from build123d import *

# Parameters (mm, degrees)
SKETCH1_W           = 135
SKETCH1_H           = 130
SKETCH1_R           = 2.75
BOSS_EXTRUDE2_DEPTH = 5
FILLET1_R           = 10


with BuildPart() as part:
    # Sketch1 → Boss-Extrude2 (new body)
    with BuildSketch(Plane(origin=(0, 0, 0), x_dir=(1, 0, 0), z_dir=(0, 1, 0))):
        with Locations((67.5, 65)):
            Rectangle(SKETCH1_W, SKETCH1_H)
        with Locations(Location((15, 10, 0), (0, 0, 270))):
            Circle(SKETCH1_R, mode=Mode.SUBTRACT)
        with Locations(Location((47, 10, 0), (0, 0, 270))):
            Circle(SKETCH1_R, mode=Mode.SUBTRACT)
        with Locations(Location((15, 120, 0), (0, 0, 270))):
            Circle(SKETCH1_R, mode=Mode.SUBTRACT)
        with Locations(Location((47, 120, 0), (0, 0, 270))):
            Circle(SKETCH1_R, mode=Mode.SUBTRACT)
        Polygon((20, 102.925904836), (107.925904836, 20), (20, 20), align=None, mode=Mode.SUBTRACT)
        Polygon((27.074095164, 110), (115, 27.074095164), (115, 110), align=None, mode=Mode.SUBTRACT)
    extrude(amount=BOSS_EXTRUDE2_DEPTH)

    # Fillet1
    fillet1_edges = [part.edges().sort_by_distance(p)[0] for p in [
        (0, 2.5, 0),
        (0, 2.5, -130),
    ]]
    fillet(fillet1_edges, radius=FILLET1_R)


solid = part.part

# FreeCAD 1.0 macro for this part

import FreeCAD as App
import Part
import Sketcher


def edges_at(feature, points):
    """Names of the edges that pass closest to the given points."""
    edges = feature.Shape.Edges
    near = lambda p: min(range(len(edges)), key=lambda i: edges[i].distToShape(Part.Vertex(*p))[0])
    return sorted({f"Edge{near(p) + 1}" for p in points})


def add_polygon(sketch, points):
    """Adds a closed chain of lines whose ends are joined by coincident constraints."""
    first, n = sketch.GeometryCount, len(points)
    for a, b in zip(points, points[1:] + points[:1]):
        sketch.addGeometry(Part.LineSegment(App.Vector(*a, 0), App.Vector(*b, 0)), False)
    for i in range(n):
        sketch.addConstraint(Sketcher.Constraint("Coincident", first + i, 2, first + (i + 1) % n, 1))

doc = App.newDocument("Part")
body = doc.addObject("PartDesign::Body", "Body")

sketch1 = body.newObject("Sketcher::SketchObject", "Sketch")
sketch1.AttachmentSupport = (doc.getObject("XZ_Plane"), [""])
sketch1.MapMode = "FlatFace"
add_polygon(sketch1, [(0, -130), (0, 0), (135, 0), (135, -130)])
sketch1.addGeometry(Part.Circle(App.Vector(15, -10, 0), App.Vector(0, 0, 1), 2.8), False)
sketch1.addGeometry(Part.Circle(App.Vector(47, -10, 0), App.Vector(0, 0, 1), 2.8), False)
add_polygon(sketch1, [(20, -20), (20, -102.9), (107.9, -20)])
sketch1.addGeometry(Part.Circle(App.Vector(15, -120, 0), App.Vector(0, 0, 1), 2.8), False)
sketch1.addGeometry(Part.Circle(App.Vector(47, -120, 0), App.Vector(0, 0, 1), 2.8), False)
add_polygon(sketch1, [(115, -27.1), (27.1, -110), (115, -110)])
sketch1.addConstraint([
    Sketcher.Constraint("Vertical", 0),
    Sketcher.Constraint("Horizontal", 1),
    Sketcher.Constraint("Vertical", 2),
    Sketcher.Constraint("Horizontal", 3),
    Sketcher.Constraint("Vertical", 6),
    Sketcher.Constraint("Horizontal", 8),
    Sketcher.Constraint("Horizontal", 12),
    Sketcher.Constraint("Vertical", 13),
    Sketcher.Constraint("Coincident", 0, 2, -1, 1),
    Sketcher.Constraint("Equal", 4, 5),
    Sketcher.Constraint("Equal", 5, 9),
    Sketcher.Constraint("Equal", 9, 10),
    Sketcher.Constraint("Parallel", 7, 11),
    Sketcher.Constraint("Horizontal", 4, 3, 5, 3),
    Sketcher.Constraint("Horizontal", 9, 3, 10, 3),
    Sketcher.Constraint("Vertical", 4, 3, 9, 3),
    Sketcher.Constraint("Vertical", 5, 3, 10, 3),
    Sketcher.Constraint("Equal", 8, 12),
    Sketcher.Constraint("Diameter", 4, 5.5),
    Sketcher.Constraint("DistanceX", 1, 1, 1, 2, 135.0),
    Sketcher.Constraint("DistanceY", 0, 1, 0, 2, 130.0),
    Sketcher.Constraint("DistanceX", -1, 1, 4, 3, 15.0),
    Sketcher.Constraint("DistanceY", 4, 3, -1, 1, 10.0),
    Sketcher.Constraint("DistanceX", -1, 1, 5, 3, 47.0),
    Sketcher.Constraint("DistanceY", 9, 3, -1, 1, 120.0),
    Sketcher.Constraint("DistanceX", -1, 1, 6, 2, 20.0),
    Sketcher.Constraint("DistanceY", 7, 2, -1, 1, 20.0),
    Sketcher.Constraint("DistanceY", 11, 2, -1, 1, 110.0),
    Sketcher.Constraint("DistanceX", -1, 1, 12, 2, 115.0),
    Sketcher.Constraint("DistanceX", 8, 2, 8, 1, 87.925905),
    Sketcher.Constraint("DistanceY", 6, 2, 6, 1, 82.925905),
])
pad1 = body.newObject("PartDesign::Pad", "Pad")
pad1.Profile = sketch1
pad1.Length = 5
pad1.Reversed = True
doc.recompute()

fillet = body.newObject("PartDesign::Fillet", "Fillet")
fillet.Base = (pad1, edges_at(pad1, [(0, 2.5, 0), (0, 2.5, -130)]))
fillet.Radius = 10

doc.recompute()
